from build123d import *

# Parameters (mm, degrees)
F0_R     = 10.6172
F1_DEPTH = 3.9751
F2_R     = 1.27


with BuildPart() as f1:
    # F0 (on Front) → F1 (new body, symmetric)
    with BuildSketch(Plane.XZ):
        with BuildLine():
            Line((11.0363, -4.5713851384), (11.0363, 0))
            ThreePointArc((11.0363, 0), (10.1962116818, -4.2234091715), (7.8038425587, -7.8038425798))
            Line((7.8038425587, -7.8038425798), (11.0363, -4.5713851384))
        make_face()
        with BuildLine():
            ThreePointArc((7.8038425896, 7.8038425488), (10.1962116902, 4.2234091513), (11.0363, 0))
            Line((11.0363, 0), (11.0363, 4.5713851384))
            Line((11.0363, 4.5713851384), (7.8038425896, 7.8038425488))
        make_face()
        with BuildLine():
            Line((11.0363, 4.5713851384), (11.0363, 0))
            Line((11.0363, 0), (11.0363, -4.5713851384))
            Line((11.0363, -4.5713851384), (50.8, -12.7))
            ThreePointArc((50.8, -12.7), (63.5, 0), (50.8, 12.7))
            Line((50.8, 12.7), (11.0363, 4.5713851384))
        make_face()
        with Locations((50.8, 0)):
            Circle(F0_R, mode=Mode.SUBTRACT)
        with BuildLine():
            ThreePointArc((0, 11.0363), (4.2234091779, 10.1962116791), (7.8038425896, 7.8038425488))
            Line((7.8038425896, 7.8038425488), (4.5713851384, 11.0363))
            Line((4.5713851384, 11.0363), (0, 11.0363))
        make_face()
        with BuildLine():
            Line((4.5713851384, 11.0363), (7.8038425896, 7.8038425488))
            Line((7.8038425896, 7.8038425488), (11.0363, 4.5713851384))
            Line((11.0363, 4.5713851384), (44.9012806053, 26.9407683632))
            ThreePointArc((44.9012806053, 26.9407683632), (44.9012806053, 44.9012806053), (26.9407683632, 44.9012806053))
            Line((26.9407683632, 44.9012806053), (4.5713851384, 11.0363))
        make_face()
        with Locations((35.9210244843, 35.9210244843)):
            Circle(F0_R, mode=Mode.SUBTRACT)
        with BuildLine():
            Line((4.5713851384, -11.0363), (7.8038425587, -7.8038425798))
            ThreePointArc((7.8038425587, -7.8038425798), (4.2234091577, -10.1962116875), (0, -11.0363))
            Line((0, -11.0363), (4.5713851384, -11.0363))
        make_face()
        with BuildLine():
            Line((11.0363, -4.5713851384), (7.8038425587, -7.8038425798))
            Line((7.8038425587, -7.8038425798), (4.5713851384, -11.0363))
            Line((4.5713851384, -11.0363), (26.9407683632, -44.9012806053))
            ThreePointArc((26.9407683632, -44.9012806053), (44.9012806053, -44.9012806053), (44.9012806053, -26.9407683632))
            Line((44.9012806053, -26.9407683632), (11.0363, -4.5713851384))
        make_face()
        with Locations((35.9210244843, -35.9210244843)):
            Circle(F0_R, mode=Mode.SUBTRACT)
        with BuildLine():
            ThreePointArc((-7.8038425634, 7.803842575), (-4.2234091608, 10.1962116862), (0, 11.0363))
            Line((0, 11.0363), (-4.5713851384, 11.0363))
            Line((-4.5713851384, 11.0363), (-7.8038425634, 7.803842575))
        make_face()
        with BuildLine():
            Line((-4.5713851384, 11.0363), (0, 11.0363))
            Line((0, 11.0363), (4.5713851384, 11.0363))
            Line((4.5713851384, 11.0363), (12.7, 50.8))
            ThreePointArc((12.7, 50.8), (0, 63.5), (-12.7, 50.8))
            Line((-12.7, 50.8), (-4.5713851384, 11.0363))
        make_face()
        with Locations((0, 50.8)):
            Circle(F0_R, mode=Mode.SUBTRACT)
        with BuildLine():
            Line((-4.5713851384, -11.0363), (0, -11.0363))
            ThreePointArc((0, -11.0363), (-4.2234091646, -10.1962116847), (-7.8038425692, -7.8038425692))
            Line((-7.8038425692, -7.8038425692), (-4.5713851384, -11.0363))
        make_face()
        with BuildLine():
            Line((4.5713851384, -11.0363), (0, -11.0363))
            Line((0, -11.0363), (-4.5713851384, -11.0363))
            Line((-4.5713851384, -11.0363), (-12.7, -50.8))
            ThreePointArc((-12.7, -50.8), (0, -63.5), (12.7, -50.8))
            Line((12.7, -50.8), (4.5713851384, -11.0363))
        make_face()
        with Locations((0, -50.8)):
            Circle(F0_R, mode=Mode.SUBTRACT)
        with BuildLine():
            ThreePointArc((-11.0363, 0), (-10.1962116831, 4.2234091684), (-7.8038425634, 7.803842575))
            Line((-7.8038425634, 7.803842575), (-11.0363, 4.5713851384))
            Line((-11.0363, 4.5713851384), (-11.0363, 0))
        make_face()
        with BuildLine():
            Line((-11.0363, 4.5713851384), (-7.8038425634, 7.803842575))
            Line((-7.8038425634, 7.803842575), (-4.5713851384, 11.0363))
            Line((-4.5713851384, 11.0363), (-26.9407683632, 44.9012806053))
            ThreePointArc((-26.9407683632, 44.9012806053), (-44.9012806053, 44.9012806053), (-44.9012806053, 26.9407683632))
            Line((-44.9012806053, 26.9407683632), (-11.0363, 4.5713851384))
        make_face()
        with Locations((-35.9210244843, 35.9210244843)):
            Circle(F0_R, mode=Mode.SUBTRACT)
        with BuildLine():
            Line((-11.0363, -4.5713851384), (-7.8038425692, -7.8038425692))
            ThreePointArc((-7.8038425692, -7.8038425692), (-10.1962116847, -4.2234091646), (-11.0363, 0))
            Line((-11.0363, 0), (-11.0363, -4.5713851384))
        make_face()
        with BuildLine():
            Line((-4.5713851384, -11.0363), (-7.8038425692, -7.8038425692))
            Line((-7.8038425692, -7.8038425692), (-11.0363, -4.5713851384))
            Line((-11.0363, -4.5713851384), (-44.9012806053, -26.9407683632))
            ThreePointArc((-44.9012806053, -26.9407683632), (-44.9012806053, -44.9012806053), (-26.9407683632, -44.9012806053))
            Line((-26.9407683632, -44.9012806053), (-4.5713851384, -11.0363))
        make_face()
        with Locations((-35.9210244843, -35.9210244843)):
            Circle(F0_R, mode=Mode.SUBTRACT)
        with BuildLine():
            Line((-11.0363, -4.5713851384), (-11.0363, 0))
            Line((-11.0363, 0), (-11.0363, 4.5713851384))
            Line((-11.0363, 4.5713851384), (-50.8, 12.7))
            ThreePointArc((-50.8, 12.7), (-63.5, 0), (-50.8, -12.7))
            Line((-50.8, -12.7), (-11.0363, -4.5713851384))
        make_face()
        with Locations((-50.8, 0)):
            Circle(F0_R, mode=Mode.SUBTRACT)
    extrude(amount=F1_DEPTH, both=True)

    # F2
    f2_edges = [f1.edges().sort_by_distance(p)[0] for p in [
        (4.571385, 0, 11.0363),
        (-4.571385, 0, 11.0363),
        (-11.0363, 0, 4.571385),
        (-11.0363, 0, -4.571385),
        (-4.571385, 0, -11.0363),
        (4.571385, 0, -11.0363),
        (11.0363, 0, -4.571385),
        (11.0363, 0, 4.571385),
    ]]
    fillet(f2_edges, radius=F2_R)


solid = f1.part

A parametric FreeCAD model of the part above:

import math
import FreeCAD as App
import Part
import Sketcher
from FreeCAD import Vector
Q = App.Units.Quantity


def edges_at(feature, points):
    """Names of the edges that pass closest to the given points."""
    edges = feature.Shape.Edges
    near = lambda p: min(range(len(edges)), key=lambda i: edges[i].distToShape(Part.Vertex(*p))[0])
    return sorted({f"Edge{near(p) + 1}" for p in points})

doc = App.newDocument("Part")
body = doc.addObject("PartDesign::Body", "Body")

sketch1 = body.newObject("Sketcher::SketchObject", "Sketch")
sketch1.AttachmentSupport = (doc.getObject("XZ_Plane"), [""])
sketch1.MapMode = "FlatFace"
sketch1.addGeometry([
    Part.LineSegment(Vector(-44.901281, 26.940768, 0), Vector(-11.0363, 4.571385, 0)),
    Part.LineSegment(Vector(-11.0363, 4.571385, 0), Vector(-50.8, 12.7, 0)),
    Part.ArcOfCircle(Part.Circle(Vector(-50.8, 0, 0), Vector(0, 0, 1), 12.7), math.radians(90), math.radians(270)),
    Part.LineSegment(Vector(-50.8, -12.7, 0), Vector(-11.0363, -4.571385, 0)),
    Part.LineSegment(Vector(-11.0363, -4.571385, 0), Vector(-44.901281, -26.940768, 0)),
    Part.ArcOfCircle(Part.Circle(Vector(-35.921024, -35.921024, 0), Vector(0, 0, 1), 12.7), math.radians(135), math.radians(315)),
    Part.LineSegment(Vector(-26.940768, -44.901281, 0), Vector(-4.571385, -11.0363, 0)),
    Part.LineSegment(Vector(-4.571385, -11.0363, 0), Vector(-12.7, -50.8, 0)),
    Part.ArcOfCircle(Part.Circle(Vector(0, -50.8, 0), Vector(0, 0, 1), 12.7), math.radians(180), math.radians(360)),
    Part.LineSegment(Vector(12.7, -50.8, 0), Vector(4.571385, -11.0363, 0)),
    Part.LineSegment(Vector(4.571385, -11.0363, 0), Vector(26.940768, -44.901281, 0)),
    Part.ArcOfCircle(Part.Circle(Vector(35.921024, -35.921024, 0), Vector(0, 0, 1), 12.7), math.radians(-135), math.radians(45)),
    Part.LineSegment(Vector(44.901281, -26.940768, 0), Vector(11.0363, -4.571385, 0)),
    Part.LineSegment(Vector(11.0363, -4.571385, 0), Vector(50.8, -12.7, 0)),
    Part.ArcOfCircle(Part.Circle(Vector(50.8, 0, 0), Vector(0, 0, 1), 12.7), math.radians(-90), math.radians(90)),
    Part.LineSegment(Vector(50.8, 12.7, 0), Vector(11.0363, 4.571385, 0)),
    Part.LineSegment(Vector(11.0363, 4.571385, 0), Vector(44.901281, 26.940768, 0)),
    Part.ArcOfCircle(Part.Circle(Vector(35.921024, 35.921024, 0), Vector(0, 0, 1), 12.7), math.radians(-45), math.radians(135)),
    Part.LineSegment(Vector(26.940768, 44.901281, 0), Vector(4.571385, 11.0363, 0)),
    Part.LineSegment(Vector(4.571385, 11.0363, 0), Vector(12.7, 50.8, 0)),
    Part.ArcOfCircle(Part.Circle(Vector(0, 50.8, 0), Vector(0, 0, 1), 12.7), math.radians(0), math.radians(180)),
    Part.LineSegment(Vector(-12.7, 50.8, 0), Vector(-4.571385, 11.0363, 0)),
    Part.LineSegment(Vector(-4.571385, 11.0363, 0), Vector(-26.940768, 44.901281, 0)),
    Part.ArcOfCircle(Part.Circle(Vector(-35.921024, 35.921024, 0), Vector(0, 0, 1), 12.7), math.radians(45), math.radians(225)),
    Part.Circle(Vector(-35.921024, -35.921024, 0), Vector(0, 0, 1), 10.6172),
    Part.Circle(Vector(0, -50.8, 0), Vector(0, 0, 1), 10.6172),
    Part.Circle(Vector(35.921024, -35.921024, 0), Vector(0, 0, 1), 10.6172),
    Part.Circle(Vector(-50.8, 0, 0), Vector(0, 0, 1), 10.6172),
    Part.Circle(Vector(-35.921024, 35.921024, 0), Vector(0, 0, 1), 10.6172),
    Part.ArcOfCircle(Part.Circle(Vector(0, 0, 0), Vector(0, 0, 1), 11.0363), math.radians(180), math.radians(225)),
    Part.ArcOfCircle(Part.Circle(Vector(0, 0, 0), Vector(0, 0, 1), 11.0363), math.radians(135), math.radians(180)),
    Part.ArcOfCircle(Part.Circle(Vector(0, 0, 0), Vector(0, 0, 1), 11.0363), math.radians(90), math.radians(135)),
    Part.ArcOfCircle(Part.Circle(Vector(0, 0, 0), Vector(0, 0, 1), 11.0363), math.radians(45), math.radians(90)),
    Part.ArcOfCircle(Part.Circle(Vector(0, 0, 0), Vector(0, 0, 1), 11.0363), math.radians(0), math.radians(45)),
    Part.ArcOfCircle(Part.Circle(Vector(0, 0, 0), Vector(0, 0, 1), 11.0363), math.radians(-45), math.radians(0)),
    Part.ArcOfCircle(Part.Circle(Vector(0, 0, 0), Vector(0, 0, 1), 11.0363), math.radians(-90), math.radians(-45)),
    Part.ArcOfCircle(Part.Circle(Vector(0, 0, 0), Vector(0, 0, 1), 11.0363), math.radians(-135), math.radians(-90)),
    Part.Circle(Vector(50.8, 0, 0), Vector(0, 0, 1), 10.6172),
    Part.Circle(Vector(0, 50.8, 0), Vector(0, 0, 1), 10.6172),
    Part.Circle(Vector(35.921024, 35.921024, 0), Vector(0, 0, 1), 10.6172),
], False)
sketch1.addConstraint([
    Sketcher.Constraint("Coincident", 0, 2, 1, 1),
    Sketcher.Constraint("Coincident", 1, 2, 2, 1),
    Sketcher.Constraint("Coincident", 2, 2, 3, 1),
    Sketcher.Constraint("Coincident", 3, 2, 4, 1),
    Sketcher.Constraint("Coincident", 4, 2, 5, 1),
    Sketcher.Constraint("Coincident", 5, 2, 6, 1),
    Sketcher.Constraint("Coincident", 6, 2, 7, 1),
    Sketcher.Constraint("Coincident", 7, 2, 8, 1),
    Sketcher.Constraint("Coincident", 8, 2, 9, 1),
    Sketcher.Constraint("Coincident", 9, 2, 10, 1),
    Sketcher.Constraint("Coincident", 10, 2, 11, 1),
    Sketcher.Constraint("Coincident", 11, 2, 12, 1),
    Sketcher.Constraint("Coincident", 12, 2, 13, 1),
    Sketcher.Constraint("Coincident", 13, 2, 14, 1),
    Sketcher.Constraint("Coincident", 14, 2, 15, 1),
    Sketcher.Constraint("Coincident", 15, 2, 16, 1),
    Sketcher.Constraint("Coincident", 16, 2, 17, 1),
    Sketcher.Constraint("Coincident", 17, 2, 18, 1),
    Sketcher.Constraint("Coincident", 18, 2, 19, 1),
    Sketcher.Constraint("Coincident", 19, 2, 20, 1),
    Sketcher.Constraint("Coincident", 20, 2, 21, 1),
    Sketcher.Constraint("Coincident", 21, 2, 22, 1),
    Sketcher.Constraint("Coincident", 22, 2, 23, 1),
    Sketcher.Constraint("Coincident", 23, 2, 0, 1),
    Sketcher.Constraint("Tangent", 29, 1, 30, 2),
    Sketcher.Constraint("Tangent", 30, 1, 31, 2),
    Sketcher.Constraint("Tangent", 31, 1, 32, 2),
    Sketcher.Constraint("Tangent", 32, 1, 33, 2),
    Sketcher.Constraint("Tangent", 33, 1, 34, 2),
    Sketcher.Constraint("Tangent", 34, 1, 35, 2),
    Sketcher.Constraint("Tangent", 35, 1, 36, 2),
    Sketcher.Constraint("Tangent", 36, 1, 29, 2),
    Sketcher.Constraint("Coincident", 29, 3, -1, 1),
    Sketcher.Constraint("Coincident", 31, 3, -1, 1),
    Sketcher.Constraint("Coincident", 33, 3, -1, 1),
    Sketcher.Constraint("Coincident", 24, 3, 5, 3),
    Sketcher.Constraint("Coincident", 25, 3, 8, 3),
    Sketcher.Constraint("Coincident", 26, 3, 11, 3),
    Sketcher.Constraint("Coincident", 27, 3, 2, 3),
    Sketcher.Constraint("Coincident", 28, 3, 23, 3),
    Sketcher.Constraint("Coincident", 37, 3, 14, 3),
    Sketcher.Constraint("Coincident", 38, 3, 20, 3),
    Sketcher.Constraint("Coincident", 39, 3, 17, 3),
    Sketcher.Constraint("Equal", 2, 5),
    Sketcher.Constraint("Equal", 5, 8),
    Sketcher.Constraint("Equal", 8, 11),
    Sketcher.Constraint("Equal", 11, 14),
    Sketcher.Constraint("Equal", 14, 17),
    Sketcher.Constraint("Equal", 17, 20),
    Sketcher.Constraint("Equal", 20, 23),
    Sketcher.Constraint("Equal", 24, 25),
    Sketcher.Constraint("Equal", 25, 26),
    Sketcher.Constraint("Equal", 26, 27),
    Sketcher.Constraint("Equal", 27, 28),
    Sketcher.Constraint("Equal", 33, 34),
    Sketcher.Constraint("Equal", 28, 37),
    Sketcher.Constraint("Equal", 37, 38),
    Sketcher.Constraint("Equal", 38, 39),
    Sketcher.Constraint("Symmetric", 2, 3, 14, 3, -1, 1),
    Sketcher.Constraint("Symmetric", 5, 3, 17, 3, -1, 1),
    Sketcher.Constraint("Symmetric", 8, 3, 20, 3, -1, 1),
    Sketcher.Constraint("Symmetric", 11, 3, 23, 3, -1, 1),
    Sketcher.Constraint("Symmetric", 0, 2, 12, 2, -1, 1),
    Sketcher.Constraint("Symmetric", 3, 2, 15, 2, -1, 1),
    Sketcher.Constraint("Symmetric", 6, 2, 18, 2, -1, 1),
    Sketcher.Constraint("Symmetric", 9, 2, 21, 2, -1, 1),
    Sketcher.Constraint("Symmetric", 5, 3, 11, 3, -2),
    Sketcher.Constraint("Symmetric", 7, 2, 8, 2, -2),
    Sketcher.Constraint("Symmetric", 6, 2, 9, 2, -2),
    Sketcher.Constraint("Symmetric", 3, 2, 12, 2, -2),
    Sketcher.Constraint("Symmetric", 2, 2, 13, 2, -2),
    Sketcher.Constraint("PointOnObject", 29, 1, -1),
    Sketcher.Constraint("PointOnObject", 31, 1, -2),
    Sketcher.Constraint("PointOnObject", 33, 1, -1),
    Sketcher.Constraint("PointOnObject", 35, 1, -2),
    Sketcher.Constraint("Perpendicular", 0, 6),
    Sketcher.Constraint("Perpendicular", 1, 7),
    Sketcher.Constraint("Perpendicular", 3, 9),
    Sketcher.Constraint("Perpendicular", 4, 10),
    Sketcher.Constraint("Perpendicular", 6, 12),
    Sketcher.Constraint("Perpendicular", 9, 15),
    Sketcher.Constraint("Perpendicular", 10, 16),
    Sketcher.Constraint("Perpendicular", 12, 18),
    Sketcher.Constraint("Perpendicular", 13, 19),
    Sketcher.Constraint("Perpendicular", 15, 21),
    Sketcher.Constraint("Perpendicular", 16, 22),
    Sketcher.Constraint("Horizontal", 25, 3, 7, 2),
    Sketcher.Constraint("Horizontal", 5, 2, 10, 2),
    Sketcher.Constraint("Horizontal", 21, 2, 31, 1),
    Sketcher.Constraint("Horizontal", 30, 1, 32, 1),
    Sketcher.Constraint("Horizontal", 34, 1, 36, 1),
    Sketcher.Constraint("Vertical", 27, 3, 1, 2),
    Sketcher.Constraint("Vertical", 3, 2, 29, 1),
    Sketcher.Constraint("Vertical", 32, 1, 34, 1),
    Sketcher.Constraint("Equal", 0, 1),
    Sketcher.Constraint("Equal", 4, 6),
    Sketcher.Constraint("Equal", 6, 7),
    Sketcher.Constraint("Radius", 2, Q("0.5 in")),
    Sketcher.Constraint("Diameter", 24, Q("0.836 in")),
    Sketcher.Constraint("DistanceX", 2, 3, -1, 1, Q("2 in")),
    Sketcher.Constraint("Radius", 29, Q("0.4345 in")),
    Sketcher.Constraint("DistanceX", 4, 2, -1, 1, Q("44.901281 mm")),
    Sketcher.Constraint("DistanceX", 5, 3, 11, 3, Q("71.842049 mm")),
    Sketcher.Constraint("DistanceX", 30, 1, -1, 1, Q("7.803843 mm")),
])
pad1 = body.newObject("PartDesign::Pad", "Pad")
pad1.Profile = sketch1
pad1.Length = Q("0.313 in")
pad1.Midplane = True
doc.recompute()

fillet = body.newObject("PartDesign::Fillet", "Fillet")
fillet.Base = (pad1, edges_at(pad1, [
    (4.571, 0, 11.036),
    (-4.571, 0, 11.036),
    (-11.036, 0, 4.571),
    (-11.036, 0, -4.571),
    (-4.571, 0, -11.036),
    (4.571, 0, -11.036),
    (11.036, 0, -4.571),
    (11.036, 0, 4.571),
]))
fillet.Radius = Q("0.05 in")

doc.recompute()
